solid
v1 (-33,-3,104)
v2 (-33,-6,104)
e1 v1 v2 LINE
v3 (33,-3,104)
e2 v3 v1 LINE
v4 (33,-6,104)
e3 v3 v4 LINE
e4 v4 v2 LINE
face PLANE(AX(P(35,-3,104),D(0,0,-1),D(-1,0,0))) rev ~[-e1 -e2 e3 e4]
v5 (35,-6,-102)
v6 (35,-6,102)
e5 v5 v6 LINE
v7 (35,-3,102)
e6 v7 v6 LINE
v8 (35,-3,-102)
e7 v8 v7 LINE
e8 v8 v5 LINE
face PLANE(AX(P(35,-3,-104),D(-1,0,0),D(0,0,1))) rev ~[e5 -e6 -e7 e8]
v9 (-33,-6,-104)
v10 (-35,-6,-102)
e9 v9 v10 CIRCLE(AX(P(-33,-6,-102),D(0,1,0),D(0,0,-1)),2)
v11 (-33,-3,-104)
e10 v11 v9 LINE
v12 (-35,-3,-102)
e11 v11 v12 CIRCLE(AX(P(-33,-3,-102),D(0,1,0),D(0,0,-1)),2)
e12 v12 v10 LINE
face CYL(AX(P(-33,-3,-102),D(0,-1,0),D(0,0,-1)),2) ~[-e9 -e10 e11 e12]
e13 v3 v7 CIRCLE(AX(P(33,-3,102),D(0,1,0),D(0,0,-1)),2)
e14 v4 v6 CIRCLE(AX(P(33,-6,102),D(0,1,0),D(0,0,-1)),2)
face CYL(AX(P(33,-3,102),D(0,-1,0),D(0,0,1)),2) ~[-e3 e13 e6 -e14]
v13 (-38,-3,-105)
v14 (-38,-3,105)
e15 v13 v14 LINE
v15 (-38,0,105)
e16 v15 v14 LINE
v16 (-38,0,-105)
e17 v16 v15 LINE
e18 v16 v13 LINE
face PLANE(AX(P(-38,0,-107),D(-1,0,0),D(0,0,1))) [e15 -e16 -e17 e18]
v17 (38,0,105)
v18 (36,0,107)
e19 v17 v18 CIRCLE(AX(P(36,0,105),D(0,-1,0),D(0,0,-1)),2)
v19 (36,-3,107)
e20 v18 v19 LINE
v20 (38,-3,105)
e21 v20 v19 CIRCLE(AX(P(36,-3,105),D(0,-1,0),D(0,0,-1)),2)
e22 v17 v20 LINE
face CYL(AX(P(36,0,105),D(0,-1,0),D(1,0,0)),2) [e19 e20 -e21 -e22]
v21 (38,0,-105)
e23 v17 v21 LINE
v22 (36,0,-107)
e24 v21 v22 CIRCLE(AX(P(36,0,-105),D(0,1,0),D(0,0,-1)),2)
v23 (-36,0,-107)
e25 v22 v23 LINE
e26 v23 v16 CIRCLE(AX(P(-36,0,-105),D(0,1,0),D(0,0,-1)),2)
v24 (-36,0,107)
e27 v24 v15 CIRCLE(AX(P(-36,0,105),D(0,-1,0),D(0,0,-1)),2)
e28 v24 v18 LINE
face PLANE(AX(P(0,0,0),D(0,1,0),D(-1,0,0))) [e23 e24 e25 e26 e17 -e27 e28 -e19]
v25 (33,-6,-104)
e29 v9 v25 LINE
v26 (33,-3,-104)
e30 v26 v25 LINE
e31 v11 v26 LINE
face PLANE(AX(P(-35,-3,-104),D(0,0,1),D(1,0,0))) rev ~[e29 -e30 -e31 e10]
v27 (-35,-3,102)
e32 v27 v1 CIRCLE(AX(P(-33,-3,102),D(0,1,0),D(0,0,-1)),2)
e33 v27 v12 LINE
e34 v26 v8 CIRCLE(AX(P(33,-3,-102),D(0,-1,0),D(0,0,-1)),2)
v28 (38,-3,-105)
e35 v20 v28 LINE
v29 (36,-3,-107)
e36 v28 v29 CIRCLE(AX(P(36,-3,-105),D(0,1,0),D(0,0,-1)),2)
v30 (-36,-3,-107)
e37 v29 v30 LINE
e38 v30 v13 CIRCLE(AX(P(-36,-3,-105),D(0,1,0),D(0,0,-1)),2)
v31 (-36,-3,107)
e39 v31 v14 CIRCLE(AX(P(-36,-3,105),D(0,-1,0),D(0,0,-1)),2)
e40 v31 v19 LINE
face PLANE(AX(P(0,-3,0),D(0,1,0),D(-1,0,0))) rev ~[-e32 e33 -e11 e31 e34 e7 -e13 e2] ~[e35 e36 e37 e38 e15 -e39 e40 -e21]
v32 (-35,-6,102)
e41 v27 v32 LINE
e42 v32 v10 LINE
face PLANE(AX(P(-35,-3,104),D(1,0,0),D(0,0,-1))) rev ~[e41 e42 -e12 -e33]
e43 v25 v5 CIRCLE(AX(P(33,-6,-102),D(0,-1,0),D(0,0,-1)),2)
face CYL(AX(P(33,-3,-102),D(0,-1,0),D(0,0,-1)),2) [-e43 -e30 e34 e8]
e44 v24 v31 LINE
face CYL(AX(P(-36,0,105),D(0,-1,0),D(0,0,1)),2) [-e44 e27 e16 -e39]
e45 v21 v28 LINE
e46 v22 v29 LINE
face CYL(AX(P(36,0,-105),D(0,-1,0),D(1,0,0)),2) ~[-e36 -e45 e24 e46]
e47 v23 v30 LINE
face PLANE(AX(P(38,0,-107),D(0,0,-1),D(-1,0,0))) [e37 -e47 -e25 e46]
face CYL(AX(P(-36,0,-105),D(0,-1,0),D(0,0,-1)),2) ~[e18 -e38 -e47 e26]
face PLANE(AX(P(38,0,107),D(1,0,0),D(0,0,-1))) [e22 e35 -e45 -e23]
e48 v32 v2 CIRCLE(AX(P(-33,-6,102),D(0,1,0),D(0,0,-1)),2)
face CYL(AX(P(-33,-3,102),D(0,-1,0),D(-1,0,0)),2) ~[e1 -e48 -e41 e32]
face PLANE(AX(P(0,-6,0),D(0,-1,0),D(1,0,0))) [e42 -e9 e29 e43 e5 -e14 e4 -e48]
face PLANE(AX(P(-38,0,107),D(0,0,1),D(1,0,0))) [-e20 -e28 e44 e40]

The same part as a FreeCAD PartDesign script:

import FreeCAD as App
import Part
import Sketcher

V = App.Vector


def edges_at(feature, points):
    """Names of the edges that pass closest to the given points."""
    edges = feature.Shape.Edges
    near = lambda p: min(range(len(edges)), key=lambda i: edges[i].distToShape(Part.Vertex(*p))[0])
    return sorted({f"Edge{near(p) + 1}" for p in points})

doc = App.newDocument("Part")
body = doc.addObject("PartDesign::Body", "Body")

# Sketch on XZ plane
sketch1 = body.newObject("Sketcher::SketchObject", "Sketch")
sketch1.AttachmentSupport = (doc.getObject("XZ_Plane"), [""])
sketch1.MapMode = "FlatFace"
sketch1.addGeometry([
    Part.LineSegment(V(38, 107, 0), V(38, -107, 0)),
    Part.LineSegment(V(38, -107, 0), V(-38, -107, 0)),
    Part.LineSegment(V(-38, -107, 0), V(-38, 107, 0)),
    Part.LineSegment(V(-38, 107, 0), V(38, 107, 0)),
], False)
sketch1.addConstraint([
    Sketcher.Constraint("Coincident", 0, 2, 1, 1),
    Sketcher.Constraint("Coincident", 1, 2, 2, 1),
    Sketcher.Constraint("Coincident", 2, 2, 3, 1),
    Sketcher.Constraint("Coincident", 3, 2, 0, 1),
    Sketcher.Constraint("Vertical", 0),
    Sketcher.Constraint("Horizontal", 1),
    Sketcher.Constraint("Vertical", 2),
    Sketcher.Constraint("Horizontal", 3),
    Sketcher.Constraint("Symmetric", 0, 2, 2, 2, -1, 1),
    Sketcher.Constraint("DistanceX", 1, 2, 1, 1, 76.0),
    Sketcher.Constraint("DistanceY", 0, 2, 0, 1, 214.0),
])
pad1 = body.newObject("PartDesign::Pad", "Pad")
pad1.Profile = sketch1
pad1.Length = 3

# Sketch on XZ plane
sketch2 = body.newObject("Sketcher::SketchObject", "Sketch001")
sketch2.AttachmentSupport = (doc.getObject("XZ_Plane"), [""])
sketch2.MapMode = "FlatFace"
sketch2.AttachmentOffset = App.Placement(V(0, 0, 3), App.Rotation())
sketch2.addGeometry([
    Part.LineSegment(V(35, -104, 0), V(35, 104, 0)),
    Part.LineSegment(V(35, 104, 0), V(-35, 104, 0)),
    Part.LineSegment(V(-35, 104, 0), V(-35, -104, 0)),
    Part.LineSegment(V(-35, -104, 0), V(35, -104, 0)),
], False)
sketch2.addConstraint([
    Sketcher.Constraint("Coincident", 0, 2, 1, 1),
    Sketcher.Constraint("Coincident", 1, 2, 2, 1),
    Sketcher.Constraint("Coincident", 2, 2, 3, 1),
    Sketcher.Constraint("Coincident", 3, 2, 0, 1),
    Sketcher.Constraint("Vertical", 0),
    Sketcher.Constraint("Horizontal", 1),
    Sketcher.Constraint("Vertical", 2),
    Sketcher.Constraint("Horizontal", 3),
    Sketcher.Constraint("Symmetric", 0, 2, 2, 2, -1, 1),
    Sketcher.Constraint("DistanceX", 1, 2, 1, 1, 70.0),
    Sketcher.Constraint("DistanceY", 0, 1, 0, 2, 208.0),
])
pad2 = body.newObject("PartDesign::Pad", "Pad001")
pad2.Profile = sketch2
pad2.Length = 3
doc.recompute()

fillet = body.newObject("PartDesign::Fillet", "Fillet")
fillet.Base = (pad2, edges_at(pad2, [
    (35, -4.5, 104),
    (-35, -4.5, 104),
    (38, -1.5, 107),
    (-38, -1.5, 107),
    (35, -4.5, -104),
    (38, -1.5, -107),
    (-35, -4.5, -104),
    (-38, -1.5, -107),
]))
fillet.Radius = 2

doc.recompute()
